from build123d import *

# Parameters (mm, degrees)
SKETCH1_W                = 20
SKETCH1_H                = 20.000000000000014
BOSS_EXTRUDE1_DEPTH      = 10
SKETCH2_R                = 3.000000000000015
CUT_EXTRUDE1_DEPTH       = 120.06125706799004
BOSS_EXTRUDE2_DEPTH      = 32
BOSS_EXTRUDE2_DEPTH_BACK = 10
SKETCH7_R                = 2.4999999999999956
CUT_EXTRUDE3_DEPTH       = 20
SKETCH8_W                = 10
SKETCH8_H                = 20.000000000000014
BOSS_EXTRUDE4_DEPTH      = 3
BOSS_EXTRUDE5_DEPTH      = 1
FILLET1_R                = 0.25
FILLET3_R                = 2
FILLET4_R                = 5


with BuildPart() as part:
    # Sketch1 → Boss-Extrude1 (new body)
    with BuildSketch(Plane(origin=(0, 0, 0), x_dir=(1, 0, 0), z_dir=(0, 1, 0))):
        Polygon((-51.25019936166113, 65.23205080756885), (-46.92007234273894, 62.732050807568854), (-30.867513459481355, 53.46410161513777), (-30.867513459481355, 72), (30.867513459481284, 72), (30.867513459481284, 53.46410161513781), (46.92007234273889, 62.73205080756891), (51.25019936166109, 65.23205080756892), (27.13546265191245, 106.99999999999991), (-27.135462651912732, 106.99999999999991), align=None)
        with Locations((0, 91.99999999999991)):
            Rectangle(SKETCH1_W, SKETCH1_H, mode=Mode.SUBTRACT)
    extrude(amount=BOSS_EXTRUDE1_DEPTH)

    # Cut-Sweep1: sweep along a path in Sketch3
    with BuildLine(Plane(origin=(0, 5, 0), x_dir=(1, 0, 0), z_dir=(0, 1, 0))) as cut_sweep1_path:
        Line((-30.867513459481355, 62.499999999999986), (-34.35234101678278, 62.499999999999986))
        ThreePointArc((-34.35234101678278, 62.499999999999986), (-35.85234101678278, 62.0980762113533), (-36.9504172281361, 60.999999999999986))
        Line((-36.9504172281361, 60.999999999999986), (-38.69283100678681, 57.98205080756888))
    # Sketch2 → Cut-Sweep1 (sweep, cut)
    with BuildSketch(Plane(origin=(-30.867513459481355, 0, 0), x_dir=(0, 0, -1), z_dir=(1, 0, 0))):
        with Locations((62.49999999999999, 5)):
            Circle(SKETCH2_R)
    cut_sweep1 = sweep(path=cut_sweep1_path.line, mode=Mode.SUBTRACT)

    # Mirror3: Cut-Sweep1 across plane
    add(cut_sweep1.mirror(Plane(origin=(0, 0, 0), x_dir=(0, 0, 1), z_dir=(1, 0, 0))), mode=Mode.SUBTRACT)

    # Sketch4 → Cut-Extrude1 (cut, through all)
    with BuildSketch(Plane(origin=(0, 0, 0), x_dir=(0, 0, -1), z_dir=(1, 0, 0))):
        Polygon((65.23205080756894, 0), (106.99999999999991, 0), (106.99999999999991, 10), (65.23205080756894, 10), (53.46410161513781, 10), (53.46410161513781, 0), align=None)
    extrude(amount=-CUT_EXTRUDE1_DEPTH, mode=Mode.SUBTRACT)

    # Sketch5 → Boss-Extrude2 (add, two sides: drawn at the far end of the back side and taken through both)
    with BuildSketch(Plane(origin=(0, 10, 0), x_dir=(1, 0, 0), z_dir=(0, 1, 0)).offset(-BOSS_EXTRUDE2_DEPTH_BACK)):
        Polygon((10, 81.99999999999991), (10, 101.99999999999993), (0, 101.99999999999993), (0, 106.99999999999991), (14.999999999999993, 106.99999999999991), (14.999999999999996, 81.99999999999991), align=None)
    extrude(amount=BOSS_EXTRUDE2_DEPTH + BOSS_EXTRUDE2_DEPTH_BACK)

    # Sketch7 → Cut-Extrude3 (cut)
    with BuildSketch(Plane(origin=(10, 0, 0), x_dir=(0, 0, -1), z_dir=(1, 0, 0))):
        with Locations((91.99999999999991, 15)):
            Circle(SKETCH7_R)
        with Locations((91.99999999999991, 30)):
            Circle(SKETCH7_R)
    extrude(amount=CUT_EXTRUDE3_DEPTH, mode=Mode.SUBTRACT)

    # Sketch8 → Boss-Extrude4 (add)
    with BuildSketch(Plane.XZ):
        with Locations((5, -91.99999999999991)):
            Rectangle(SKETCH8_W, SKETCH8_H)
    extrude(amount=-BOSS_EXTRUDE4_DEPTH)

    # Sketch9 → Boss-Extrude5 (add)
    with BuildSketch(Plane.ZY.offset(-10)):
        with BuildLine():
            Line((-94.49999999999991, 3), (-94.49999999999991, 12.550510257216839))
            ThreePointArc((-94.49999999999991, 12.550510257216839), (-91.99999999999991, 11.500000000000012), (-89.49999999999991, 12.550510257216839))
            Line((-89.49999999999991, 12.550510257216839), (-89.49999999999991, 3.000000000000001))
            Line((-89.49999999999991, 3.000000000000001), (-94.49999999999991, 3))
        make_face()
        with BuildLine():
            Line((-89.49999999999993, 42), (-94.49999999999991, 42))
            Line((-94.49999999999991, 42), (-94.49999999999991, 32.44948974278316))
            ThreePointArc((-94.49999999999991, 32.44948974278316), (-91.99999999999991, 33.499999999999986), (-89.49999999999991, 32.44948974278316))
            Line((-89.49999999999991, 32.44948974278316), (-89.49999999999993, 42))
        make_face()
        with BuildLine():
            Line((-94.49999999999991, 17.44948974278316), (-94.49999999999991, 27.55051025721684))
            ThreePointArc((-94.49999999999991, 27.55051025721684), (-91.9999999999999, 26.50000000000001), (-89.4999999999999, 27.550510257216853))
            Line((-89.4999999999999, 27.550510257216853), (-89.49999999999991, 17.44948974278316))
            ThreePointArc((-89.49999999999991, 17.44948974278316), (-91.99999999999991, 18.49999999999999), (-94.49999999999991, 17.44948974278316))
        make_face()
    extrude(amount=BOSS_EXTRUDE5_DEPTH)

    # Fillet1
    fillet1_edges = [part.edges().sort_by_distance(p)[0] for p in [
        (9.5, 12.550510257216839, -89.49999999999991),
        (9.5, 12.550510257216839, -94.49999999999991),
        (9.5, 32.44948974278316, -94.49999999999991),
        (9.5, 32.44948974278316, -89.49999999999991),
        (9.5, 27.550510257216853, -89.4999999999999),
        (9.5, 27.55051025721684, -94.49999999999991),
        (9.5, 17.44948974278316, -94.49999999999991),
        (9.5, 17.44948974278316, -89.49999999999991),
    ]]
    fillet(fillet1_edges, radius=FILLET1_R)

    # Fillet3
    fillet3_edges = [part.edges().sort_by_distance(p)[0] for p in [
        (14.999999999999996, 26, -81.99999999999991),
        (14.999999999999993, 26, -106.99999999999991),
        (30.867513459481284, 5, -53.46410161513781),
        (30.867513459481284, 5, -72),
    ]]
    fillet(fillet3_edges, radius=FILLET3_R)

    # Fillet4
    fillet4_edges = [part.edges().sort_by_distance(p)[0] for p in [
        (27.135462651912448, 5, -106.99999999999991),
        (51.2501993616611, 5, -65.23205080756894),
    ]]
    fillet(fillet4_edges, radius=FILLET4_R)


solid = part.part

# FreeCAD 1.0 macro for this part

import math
import FreeCAD as App
import Part
import Sketcher
from FreeCAD import Vector
Q = App.Units.Quantity


def edges_at(feature, points):
    """Names of the edges that pass closest to the given points."""
    edges = feature.Shape.Edges
    near = lambda p: min(range(len(edges)), key=lambda i: edges[i].distToShape(Part.Vertex(*p))[0])
    return sorted({f"Edge{near(p) + 1}" for p in points})


def add_polygon(sketch, points):
    """Adds a closed chain of lines whose ends are joined by coincident constraints."""
    first, n = sketch.GeometryCount, len(points)
    for a, b in zip(points, points[1:] + points[:1]):
        sketch.addGeometry(Part.LineSegment(App.Vector(*a, 0), App.Vector(*b, 0)), False)
    for i in range(n):
        sketch.addConstraint(Sketcher.Constraint("Coincident", first + i, 2, first + (i + 1) % n, 1))

doc = App.newDocument("Part")
params = doc.addObject("Spreadsheet::Sheet", "Params")
for row, (alias, value) in enumerate([
    ("sketch1_width", "20 mm"),
    ("pad1_length", "10 mm"),
    ("sketch2_diameter", "6 mm"),
    ("sketch3_radius", "3 mm"),
    ("sketch4_width", "10 mm"),
    ("sketch5_width", "5 mm"),
    ("sketch5_width2", "15 mm"),
    ("sketch5_height", "20 mm"),
    ("pad2_length", "32 mm"),
    ("pad2_length2", "10 mm"),
    ("sketch6_diameter", "5 mm"),
    ("pocket2_length", "20 mm"),
    ("sketch7_width", "10 mm"),
    ("sketch7_height", "20 mm"),
    ("pad3_length", "3 mm"),
    ("sketch8_radius", "3.5 mm"),
    ("sketch8_height", "5 mm"),
    ("pad4_length", "1 mm"),
    ("fillet_radius", "0.25 mm"),
    ("fillet2_radius", "2 mm"),
    ("fillet3_radius", "5 mm"),
], start=1):
    params.set(f"A{row}", alias)
    params.set(f"B{row}", "=" + value)
    params.setAlias(f"B{row}", alias)

body = doc.addObject("PartDesign::Body", "Body")

sketch1 = body.newObject("Sketcher::SketchObject", "Sketch")
sketch1.AttachmentSupport = (doc.getObject("XZ_Plane"), [""])
sketch1.MapMode = "FlatFace"
add_polygon(sketch1, [(-51.250199, -65.232051), (-30.867513, -53.464102), (-30.867513, -72), (30.867513, -72), (30.867513, -53.464102), (51.250199, -65.232051), (27.135463, -107), (-27.135463, -107)])
add_polygon(sketch1, [(10, -82), (-10, -82), (-10, -102), (10, -102)])
sketch1.addConstraint([
    Sketcher.Constraint("Vertical", 1),
    Sketcher.Constraint("Horizontal", 2),
    Sketcher.Constraint("Vertical", 3),
    Sketcher.Constraint("Horizontal", 6),
    Sketcher.Constraint("Horizontal", 8),
    Sketcher.Constraint("Vertical", 9),
    Sketcher.Constraint("Horizontal", 10),
    Sketcher.Constraint("Vertical", 11),
    Sketcher.Constraint("Symmetric", 0, 2, 3, 2, -2),
    Sketcher.Constraint("Symmetric", 4, 2, 7, 2, -2),
    Sketcher.Constraint("Perpendicular", 4, 5),
    Sketcher.Constraint("Perpendicular", 0, 7),
    Sketcher.Constraint("Equal", 10, 9),
    Sketcher.Constraint("DistanceX", 8, 2, 8, 1, 20.0),
    Sketcher.Constraint("Angle", 0, Q("30 deg")),
    Sketcher.Constraint("DistanceY", 1, 2, -1, 1, 72.0),
    Sketcher.Constraint("DistanceY", 5, 2, -1, 1, 107.0),
    Sketcher.Constraint("DistanceX", 8, 2, -1, 1, 10.0),
    Sketcher.Constraint("DistanceY", 8, 2, -1, 1, 82.0),
    Sketcher.Constraint("DistanceY", 1, 2, 1, 1, 18.535898),
    Sketcher.Constraint("Distance", 0, 23.535898),
    Sketcher.Constraint("DistanceX", -1, 1, 4, 2, 51.250199),
])
sketch1.setExpression("Constraints[25]", "Params.sketch1_width")
pad1 = body.newObject("PartDesign::Pad", "Pad")
pad1.Profile = sketch1
pad1.setExpression("Length", "Params.pad1_length")
pad1.Reversed = True

sketch2 = body.newObject("Sketcher::SketchObject", "Sketch001")
sketch2.AttachmentSupport = (doc.getObject("YZ_Plane"), [""])
sketch2.MapMode = "FlatFace"
sketch2.AttachmentOffset = App.Placement(Vector(0, 0, -30.867513), App.Rotation())
sketch2.addGeometry(Part.Circle(Vector(5, -62.5, 0), Vector(0, 0, 1), 3), False)
sketch2.addConstraint([
    Sketcher.Constraint("Diameter", 0, 6.0),
    Sketcher.Constraint("DistanceX", -1, 1, 0, 3, 5.0),
    Sketcher.Constraint("DistanceY", 0, 3, -1, 1, 62.5),
])
sketch2.setExpression("Constraints[0]", "Params.sketch2_diameter")

sketch3 = body.newObject("Sketcher::SketchObject", "Sketch002")
sketch3.AttachmentSupport = (doc.getObject("XZ_Plane"), [""])
sketch3.MapMode = "FlatFace"
sketch3.AttachmentOffset = App.Placement(Vector(0, 0, -5), App.Rotation())
sketch3.addGeometry([
    Part.LineSegment(Vector(-30.867513, -62.5, 0), Vector(-34.352341, -62.5, 0)),
    Part.ArcOfCircle(Part.Circle(Vector(-34.352341, -59.5, 0), Vector(0, 0, 1), 3), math.radians(-150), math.radians(-90)),
    Part.LineSegment(Vector(-36.950417, -61, 0), Vector(-38.692831, -57.982051, 0)),
], False)
sketch3.addConstraint([
    Sketcher.Constraint("Tangent", 0, 2, 1, 2),
    Sketcher.Constraint("Tangent", 1, 1, 2, 1),
    Sketcher.Constraint("Horizontal", 0),
    Sketcher.Constraint("Radius", 1, 3.0),
    Sketcher.Constraint("Angle", 2, Q("120 deg")),
    Sketcher.Constraint("DistanceY", 1, 1, -1, 1, 61.0),
    Sketcher.Constraint("DistanceX", 0, 2, 0, 1, 3.484828),
    Sketcher.Constraint("DistanceX", 1, 3, -1, 1, 34.352341),
    Sketcher.Constraint("DistanceX", 2, 2, -1, 1, 38.692831),
])
sketch3.setExpression("Constraints[3]", "Params.sketch3_radius")
doc.recompute()

subtractivepipe = body.newObject("PartDesign::SubtractivePipe", "SubtractivePipe")
subtractivepipe.Profile = sketch2
subtractivepipe.Spine = (sketch3, ["Edge1", "Edge2", "Edge3"])
doc.recompute()

mirrored = body.newObject("PartDesign::Mirrored", "Mirrored")
mirrored.Originals = [subtractivepipe]
mirrored.MirrorPlane = (doc.getObject("YZ_Plane"), [""])
body.Tip = mirrored

sketch4 = body.newObject("Sketcher::SketchObject", "Sketch003")
sketch4.AttachmentSupport = (doc.getObject("YZ_Plane"), [""])
sketch4.MapMode = "FlatFace"
add_polygon(sketch4, [(0, -107), (10, -107), (10, -53.464102), (0, -53.464102)])
sketch4.addConstraint([
    Sketcher.Constraint("Horizontal", 0),
    Sketcher.Constraint("Vertical", 1),
    Sketcher.Constraint("Horizontal", 2),
    Sketcher.Constraint("Vertical", 3),
    Sketcher.Constraint("PointOnObject", 2, 2, -2),
    Sketcher.Constraint("DistanceX", 0, 1, 0, 2, 10.0),
    Sketcher.Constraint("DistanceY", 0, 2, -1, 1, 107.0),
    Sketcher.Constraint("DistanceY", 1, 1, 1, 2, 53.535898),
])
sketch4.setExpression("Constraints[9]", "Params.sketch4_width")
pocket1 = body.newObject("PartDesign::Pocket", "Pocket")
pocket1.Profile = sketch4
pocket1.Type = "ThroughAll"

sketch5 = body.newObject("Sketcher::SketchObject", "Sketch004")
sketch5.AttachmentSupport = (doc.getObject("XZ_Plane"), [""])
sketch5.MapMode = "FlatFace"
sketch5.AttachmentOffset = App.Placement(Vector(0, 0, -10), App.Rotation())
add_polygon(sketch5, [(10, -102), (10, -82), (15, -82), (15, -107), (0, -107), (0, -102)])
sketch5.addConstraint([
    Sketcher.Constraint("Vertical", 0),
    Sketcher.Constraint("Horizontal", 1),
    Sketcher.Constraint("Vertical", 2),
    Sketcher.Constraint("Horizontal", 3),
    Sketcher.Constraint("Vertical", 4),
    Sketcher.Constraint("Horizontal", 5),
    Sketcher.Constraint("PointOnObject", 3, 2, -2),
    Sketcher.Constraint("Equal", 1, 4),
    Sketcher.Constraint("DistanceX", 1, 1, 1, 2, 5.0),
    Sketcher.Constraint("DistanceX", 3, 2, 3, 1, 15.0),
    Sketcher.Constraint("DistanceY", 0, 1, 0, 2, 20.0),
    Sketcher.Constraint("DistanceY", 0, 2, -1, 1, 82.0),
])
sketch5.setExpression("Constraints[14]", "Params.sketch5_width")
sketch5.setExpression("Constraints[15]", "Params.sketch5_width2")
sketch5.setExpression("Constraints[16]", "Params.sketch5_height")
pad2 = body.newObject("PartDesign::Pad", "Pad001")
pad2.Profile = sketch5
pad2.Type = "TwoLengths"
pad2.setExpression("Length", "Params.pad2_length")
pad2.setExpression("Length2", "Params.pad2_length2")
pad2.Reversed = True

sketch6 = body.newObject("Sketcher::SketchObject", "Sketch005")
sketch6.AttachmentSupport = (doc.getObject("YZ_Plane"), [""])
sketch6.MapMode = "FlatFace"
sketch6.AttachmentOffset = App.Placement(Vector(0, 0, 10), App.Rotation())
sketch6.addGeometry([
    Part.Circle(Vector(15, -92, 0), Vector(0, 0, 1), 2.5),
    Part.Circle(Vector(30, -92, 0), Vector(0, 0, 1), 2.5),
], False)
sketch6.addConstraint([
    Sketcher.Constraint("Equal", 0, 1),
    Sketcher.Constraint("Horizontal", 0, 3, 1, 3),
    Sketcher.Constraint("Diameter", 0, 5.0),
    Sketcher.Constraint("DistanceX", -1, 1, 0, 3, 15.0),
    Sketcher.Constraint("DistanceY", 0, 3, -1, 1, 92.0),
    Sketcher.Constraint("DistanceX", -1, 1, 1, 3, 30.0),
])
sketch6.setExpression("Constraints[2]", "Params.sketch6_diameter")
pocket2 = body.newObject("PartDesign::Pocket", "Pocket001")
pocket2.Profile = sketch6
pocket2.setExpression("Length", "Params.pocket2_length")
pocket2.Reversed = True

sketch7 = body.newObject("Sketcher::SketchObject", "Sketch006")
sketch7.AttachmentSupport = (doc.getObject("XZ_Plane"), [""])
sketch7.MapMode = "FlatFace"
add_polygon(sketch7, [(0, -82), (0, -102), (10, -102), (10, -82)])
sketch7.addConstraint([
    Sketcher.Constraint("Vertical", 0),
    Sketcher.Constraint("Horizontal", 1),
    Sketcher.Constraint("Vertical", 2),
    Sketcher.Constraint("Horizontal", 3),
    Sketcher.Constraint("PointOnObject", 0, 2, -2),
    Sketcher.Constraint("DistanceX", 1, 1, 1, 2, 10.0),
    Sketcher.Constraint("DistanceY", 0, 2, 0, 1, 20.0),
    Sketcher.Constraint("DistanceY", 0, 2, -1, 1, 102.0),
])
sketch7.setExpression("Constraints[9]", "Params.sketch7_width")
sketch7.setExpression("Constraints[10]", "Params.sketch7_height")
pad3 = body.newObject("PartDesign::Pad", "Pad002")
pad3.Profile = sketch7
pad3.setExpression("Length", "Params.pad3_length")
pad3.Reversed = True

sketch8 = body.newObject("Sketcher::SketchObject", "Sketch007")
sketch8.AttachmentSupport = (doc.getObject("YZ_Plane"), [""])
sketch8.MapMode = "FlatFace"
sketch8.AttachmentOffset = App.Placement(Vector(0, 0, 10), App.Rotation())
sketch8.addGeometry([
    Part.LineSegment(Vector(12.55051, -94.5, 0), Vector(3, -94.5, 0)),
    Part.LineSegment(Vector(3, -94.5, 0), Vector(3, -89.5, 0)),
    Part.LineSegment(Vector(3, -89.5, 0), Vector(12.55051, -89.5, 0)),
    Part.ArcOfCircle(Part.Circle(Vector(15, -92, 0), Vector(0, 0, 1), 3.5), math.radians(134.415309), math.radians(225.584691)),
    Part.LineSegment(Vector(42, -89.5, 0), Vector(42, -94.5, 0)),
    Part.LineSegment(Vector(42, -94.5, 0), Vector(32.44949, -94.5, 0)),
    Part.ArcOfCircle(Part.Circle(Vector(30, -92, 0), Vector(0, 0, 1), 3.5), math.radians(-45.584691), math.radians(45.584691)),
    Part.LineSegment(Vector(32.44949, -89.5, 0), Vector(42, -89.5, 0)),
    Part.LineSegment(Vector(27.55051, -94.5, 0), Vector(17.44949, -94.5, 0)),
    Part.ArcOfCircle(Part.Circle(Vector(15, -92, 0), Vector(0, 0, 1), 3.5), math.radians(-45.584691), math.radians(45.584691)),
    Part.LineSegment(Vector(17.44949, -89.5, 0), Vector(27.55051, -89.5, 0)),
    Part.ArcOfCircle(Part.Circle(Vector(30, -92, 0), Vector(0, 0, 1), 3.5), math.radians(134.415309), math.radians(225.584691)),
], False)
sketch8.addConstraint([
    Sketcher.Constraint("Coincident", 0, 2, 1, 1),
    Sketcher.Constraint("Coincident", 1, 2, 2, 1),
    Sketcher.Constraint("Coincident", 2, 2, 3, 1),
    Sketcher.Constraint("Coincident", 3, 2, 0, 1),
    Sketcher.Constraint("Coincident", 4, 2, 5, 1),
    Sketcher.Constraint("Coincident", 5, 2, 6, 1),
    Sketcher.Constraint("Coincident", 6, 2, 7, 1),
    Sketcher.Constraint("Coincident", 7, 2, 4, 1),
    Sketcher.Constraint("Coincident", 8, 2, 9, 1),
    Sketcher.Constraint("Coincident", 9, 2, 10, 1),
    Sketcher.Constraint("Coincident", 10, 2, 11, 1),
    Sketcher.Constraint("Coincident", 11, 2, 8, 1),
    Sketcher.Constraint("Horizontal", 0),
    Sketcher.Constraint("Vertical", 1),
    Sketcher.Constraint("Horizontal", 2),
    Sketcher.Constraint("Vertical", 4),
    Sketcher.Constraint("Horizontal", 5),
    Sketcher.Constraint("Horizontal", 7),
    Sketcher.Constraint("Horizontal", 8),
    Sketcher.Constraint("Horizontal", 10),
    Sketcher.Constraint("Coincident", 9, 3, 3, 3),
    Sketcher.Constraint("Coincident", 11, 3, 6, 3),
    Sketcher.Constraint("Equal", 3, 6),
    Sketcher.Constraint("Equal", 6, 9),
    Sketcher.Constraint("Equal", 9, 11),
    Sketcher.Constraint("Horizontal", 3, 3, 6, 3),
    Sketcher.Constraint("Horizontal", 3, 2, 4, 2),
    Sketcher.Constraint("Horizontal", 2, 2, 6, 2),
    Sketcher.Constraint("Horizontal", 5, 2, 8, 2),
    Sketcher.Constraint("Horizontal", 7, 2, 9, 2),
    Sketcher.Constraint("Vertical", 2, 2, 3, 2),
    Sketcher.Constraint("Equal", 2, 5),
    Sketcher.Constraint("Radius", 3, 3.5),
    Sketcher.Constraint("DistanceY", 1, 1, 1, 2, 5.0),
    Sketcher.Constraint("DistanceX", -1, 1, 3, 3, 15.0),
    Sketcher.Constraint("DistanceY", 3, 3, -1, 1, 92.0),
    Sketcher.Constraint("DistanceX", -1, 1, 6, 3, 30.0),
    Sketcher.Constraint("DistanceX", -1, 1, 0, 2, 3.0),
])
sketch8.setExpression("Constraints[32]", "Params.sketch8_radius")
sketch8.setExpression("Constraints[33]", "Params.sketch8_height")
pad4 = body.newObject("PartDesign::Pad", "Pad003")
pad4.Profile = sketch8
pad4.setExpression("Length", "Params.pad4_length")
pad4.Reversed = True
doc.recompute()

fillet = body.newObject("PartDesign::Fillet", "Fillet")
fillet.Base = (pad4, edges_at(pad4, [
    (9.5, 12.551, -89.5),
    (9.5, 12.551, -94.5),
    (9.5, 32.449, -94.5),
    (9.5, 32.449, -89.5),
    (9.5, 27.551, -89.5),
    (9.5, 27.551, -94.5),
    (9.5, 17.449, -94.5),
    (9.5, 17.449, -89.5),
]))
fillet.setExpression("Radius", "Params.fillet_radius")
doc.recompute()

fillet2 = body.newObject("PartDesign::Fillet", "Fillet001")
fillet2.Base = (fillet, edges_at(fillet, [
    (15, 26, -82),
    (15, 26, -107),
    (30.868, 5, -53.464),
    (30.868, 5, -72),
]))
fillet2.setExpression("Radius", "Params.fillet2_radius")
doc.recompute()

fillet3 = body.newObject("PartDesign::Fillet", "Fillet002")
fillet3.Base = (fillet2, edges_at(fillet2, [(27.135, 5, -107), (51.25, 5, -65.232)]))
fillet3.setExpression("Radius", "Params.fillet3_radius")

doc.recompute()
